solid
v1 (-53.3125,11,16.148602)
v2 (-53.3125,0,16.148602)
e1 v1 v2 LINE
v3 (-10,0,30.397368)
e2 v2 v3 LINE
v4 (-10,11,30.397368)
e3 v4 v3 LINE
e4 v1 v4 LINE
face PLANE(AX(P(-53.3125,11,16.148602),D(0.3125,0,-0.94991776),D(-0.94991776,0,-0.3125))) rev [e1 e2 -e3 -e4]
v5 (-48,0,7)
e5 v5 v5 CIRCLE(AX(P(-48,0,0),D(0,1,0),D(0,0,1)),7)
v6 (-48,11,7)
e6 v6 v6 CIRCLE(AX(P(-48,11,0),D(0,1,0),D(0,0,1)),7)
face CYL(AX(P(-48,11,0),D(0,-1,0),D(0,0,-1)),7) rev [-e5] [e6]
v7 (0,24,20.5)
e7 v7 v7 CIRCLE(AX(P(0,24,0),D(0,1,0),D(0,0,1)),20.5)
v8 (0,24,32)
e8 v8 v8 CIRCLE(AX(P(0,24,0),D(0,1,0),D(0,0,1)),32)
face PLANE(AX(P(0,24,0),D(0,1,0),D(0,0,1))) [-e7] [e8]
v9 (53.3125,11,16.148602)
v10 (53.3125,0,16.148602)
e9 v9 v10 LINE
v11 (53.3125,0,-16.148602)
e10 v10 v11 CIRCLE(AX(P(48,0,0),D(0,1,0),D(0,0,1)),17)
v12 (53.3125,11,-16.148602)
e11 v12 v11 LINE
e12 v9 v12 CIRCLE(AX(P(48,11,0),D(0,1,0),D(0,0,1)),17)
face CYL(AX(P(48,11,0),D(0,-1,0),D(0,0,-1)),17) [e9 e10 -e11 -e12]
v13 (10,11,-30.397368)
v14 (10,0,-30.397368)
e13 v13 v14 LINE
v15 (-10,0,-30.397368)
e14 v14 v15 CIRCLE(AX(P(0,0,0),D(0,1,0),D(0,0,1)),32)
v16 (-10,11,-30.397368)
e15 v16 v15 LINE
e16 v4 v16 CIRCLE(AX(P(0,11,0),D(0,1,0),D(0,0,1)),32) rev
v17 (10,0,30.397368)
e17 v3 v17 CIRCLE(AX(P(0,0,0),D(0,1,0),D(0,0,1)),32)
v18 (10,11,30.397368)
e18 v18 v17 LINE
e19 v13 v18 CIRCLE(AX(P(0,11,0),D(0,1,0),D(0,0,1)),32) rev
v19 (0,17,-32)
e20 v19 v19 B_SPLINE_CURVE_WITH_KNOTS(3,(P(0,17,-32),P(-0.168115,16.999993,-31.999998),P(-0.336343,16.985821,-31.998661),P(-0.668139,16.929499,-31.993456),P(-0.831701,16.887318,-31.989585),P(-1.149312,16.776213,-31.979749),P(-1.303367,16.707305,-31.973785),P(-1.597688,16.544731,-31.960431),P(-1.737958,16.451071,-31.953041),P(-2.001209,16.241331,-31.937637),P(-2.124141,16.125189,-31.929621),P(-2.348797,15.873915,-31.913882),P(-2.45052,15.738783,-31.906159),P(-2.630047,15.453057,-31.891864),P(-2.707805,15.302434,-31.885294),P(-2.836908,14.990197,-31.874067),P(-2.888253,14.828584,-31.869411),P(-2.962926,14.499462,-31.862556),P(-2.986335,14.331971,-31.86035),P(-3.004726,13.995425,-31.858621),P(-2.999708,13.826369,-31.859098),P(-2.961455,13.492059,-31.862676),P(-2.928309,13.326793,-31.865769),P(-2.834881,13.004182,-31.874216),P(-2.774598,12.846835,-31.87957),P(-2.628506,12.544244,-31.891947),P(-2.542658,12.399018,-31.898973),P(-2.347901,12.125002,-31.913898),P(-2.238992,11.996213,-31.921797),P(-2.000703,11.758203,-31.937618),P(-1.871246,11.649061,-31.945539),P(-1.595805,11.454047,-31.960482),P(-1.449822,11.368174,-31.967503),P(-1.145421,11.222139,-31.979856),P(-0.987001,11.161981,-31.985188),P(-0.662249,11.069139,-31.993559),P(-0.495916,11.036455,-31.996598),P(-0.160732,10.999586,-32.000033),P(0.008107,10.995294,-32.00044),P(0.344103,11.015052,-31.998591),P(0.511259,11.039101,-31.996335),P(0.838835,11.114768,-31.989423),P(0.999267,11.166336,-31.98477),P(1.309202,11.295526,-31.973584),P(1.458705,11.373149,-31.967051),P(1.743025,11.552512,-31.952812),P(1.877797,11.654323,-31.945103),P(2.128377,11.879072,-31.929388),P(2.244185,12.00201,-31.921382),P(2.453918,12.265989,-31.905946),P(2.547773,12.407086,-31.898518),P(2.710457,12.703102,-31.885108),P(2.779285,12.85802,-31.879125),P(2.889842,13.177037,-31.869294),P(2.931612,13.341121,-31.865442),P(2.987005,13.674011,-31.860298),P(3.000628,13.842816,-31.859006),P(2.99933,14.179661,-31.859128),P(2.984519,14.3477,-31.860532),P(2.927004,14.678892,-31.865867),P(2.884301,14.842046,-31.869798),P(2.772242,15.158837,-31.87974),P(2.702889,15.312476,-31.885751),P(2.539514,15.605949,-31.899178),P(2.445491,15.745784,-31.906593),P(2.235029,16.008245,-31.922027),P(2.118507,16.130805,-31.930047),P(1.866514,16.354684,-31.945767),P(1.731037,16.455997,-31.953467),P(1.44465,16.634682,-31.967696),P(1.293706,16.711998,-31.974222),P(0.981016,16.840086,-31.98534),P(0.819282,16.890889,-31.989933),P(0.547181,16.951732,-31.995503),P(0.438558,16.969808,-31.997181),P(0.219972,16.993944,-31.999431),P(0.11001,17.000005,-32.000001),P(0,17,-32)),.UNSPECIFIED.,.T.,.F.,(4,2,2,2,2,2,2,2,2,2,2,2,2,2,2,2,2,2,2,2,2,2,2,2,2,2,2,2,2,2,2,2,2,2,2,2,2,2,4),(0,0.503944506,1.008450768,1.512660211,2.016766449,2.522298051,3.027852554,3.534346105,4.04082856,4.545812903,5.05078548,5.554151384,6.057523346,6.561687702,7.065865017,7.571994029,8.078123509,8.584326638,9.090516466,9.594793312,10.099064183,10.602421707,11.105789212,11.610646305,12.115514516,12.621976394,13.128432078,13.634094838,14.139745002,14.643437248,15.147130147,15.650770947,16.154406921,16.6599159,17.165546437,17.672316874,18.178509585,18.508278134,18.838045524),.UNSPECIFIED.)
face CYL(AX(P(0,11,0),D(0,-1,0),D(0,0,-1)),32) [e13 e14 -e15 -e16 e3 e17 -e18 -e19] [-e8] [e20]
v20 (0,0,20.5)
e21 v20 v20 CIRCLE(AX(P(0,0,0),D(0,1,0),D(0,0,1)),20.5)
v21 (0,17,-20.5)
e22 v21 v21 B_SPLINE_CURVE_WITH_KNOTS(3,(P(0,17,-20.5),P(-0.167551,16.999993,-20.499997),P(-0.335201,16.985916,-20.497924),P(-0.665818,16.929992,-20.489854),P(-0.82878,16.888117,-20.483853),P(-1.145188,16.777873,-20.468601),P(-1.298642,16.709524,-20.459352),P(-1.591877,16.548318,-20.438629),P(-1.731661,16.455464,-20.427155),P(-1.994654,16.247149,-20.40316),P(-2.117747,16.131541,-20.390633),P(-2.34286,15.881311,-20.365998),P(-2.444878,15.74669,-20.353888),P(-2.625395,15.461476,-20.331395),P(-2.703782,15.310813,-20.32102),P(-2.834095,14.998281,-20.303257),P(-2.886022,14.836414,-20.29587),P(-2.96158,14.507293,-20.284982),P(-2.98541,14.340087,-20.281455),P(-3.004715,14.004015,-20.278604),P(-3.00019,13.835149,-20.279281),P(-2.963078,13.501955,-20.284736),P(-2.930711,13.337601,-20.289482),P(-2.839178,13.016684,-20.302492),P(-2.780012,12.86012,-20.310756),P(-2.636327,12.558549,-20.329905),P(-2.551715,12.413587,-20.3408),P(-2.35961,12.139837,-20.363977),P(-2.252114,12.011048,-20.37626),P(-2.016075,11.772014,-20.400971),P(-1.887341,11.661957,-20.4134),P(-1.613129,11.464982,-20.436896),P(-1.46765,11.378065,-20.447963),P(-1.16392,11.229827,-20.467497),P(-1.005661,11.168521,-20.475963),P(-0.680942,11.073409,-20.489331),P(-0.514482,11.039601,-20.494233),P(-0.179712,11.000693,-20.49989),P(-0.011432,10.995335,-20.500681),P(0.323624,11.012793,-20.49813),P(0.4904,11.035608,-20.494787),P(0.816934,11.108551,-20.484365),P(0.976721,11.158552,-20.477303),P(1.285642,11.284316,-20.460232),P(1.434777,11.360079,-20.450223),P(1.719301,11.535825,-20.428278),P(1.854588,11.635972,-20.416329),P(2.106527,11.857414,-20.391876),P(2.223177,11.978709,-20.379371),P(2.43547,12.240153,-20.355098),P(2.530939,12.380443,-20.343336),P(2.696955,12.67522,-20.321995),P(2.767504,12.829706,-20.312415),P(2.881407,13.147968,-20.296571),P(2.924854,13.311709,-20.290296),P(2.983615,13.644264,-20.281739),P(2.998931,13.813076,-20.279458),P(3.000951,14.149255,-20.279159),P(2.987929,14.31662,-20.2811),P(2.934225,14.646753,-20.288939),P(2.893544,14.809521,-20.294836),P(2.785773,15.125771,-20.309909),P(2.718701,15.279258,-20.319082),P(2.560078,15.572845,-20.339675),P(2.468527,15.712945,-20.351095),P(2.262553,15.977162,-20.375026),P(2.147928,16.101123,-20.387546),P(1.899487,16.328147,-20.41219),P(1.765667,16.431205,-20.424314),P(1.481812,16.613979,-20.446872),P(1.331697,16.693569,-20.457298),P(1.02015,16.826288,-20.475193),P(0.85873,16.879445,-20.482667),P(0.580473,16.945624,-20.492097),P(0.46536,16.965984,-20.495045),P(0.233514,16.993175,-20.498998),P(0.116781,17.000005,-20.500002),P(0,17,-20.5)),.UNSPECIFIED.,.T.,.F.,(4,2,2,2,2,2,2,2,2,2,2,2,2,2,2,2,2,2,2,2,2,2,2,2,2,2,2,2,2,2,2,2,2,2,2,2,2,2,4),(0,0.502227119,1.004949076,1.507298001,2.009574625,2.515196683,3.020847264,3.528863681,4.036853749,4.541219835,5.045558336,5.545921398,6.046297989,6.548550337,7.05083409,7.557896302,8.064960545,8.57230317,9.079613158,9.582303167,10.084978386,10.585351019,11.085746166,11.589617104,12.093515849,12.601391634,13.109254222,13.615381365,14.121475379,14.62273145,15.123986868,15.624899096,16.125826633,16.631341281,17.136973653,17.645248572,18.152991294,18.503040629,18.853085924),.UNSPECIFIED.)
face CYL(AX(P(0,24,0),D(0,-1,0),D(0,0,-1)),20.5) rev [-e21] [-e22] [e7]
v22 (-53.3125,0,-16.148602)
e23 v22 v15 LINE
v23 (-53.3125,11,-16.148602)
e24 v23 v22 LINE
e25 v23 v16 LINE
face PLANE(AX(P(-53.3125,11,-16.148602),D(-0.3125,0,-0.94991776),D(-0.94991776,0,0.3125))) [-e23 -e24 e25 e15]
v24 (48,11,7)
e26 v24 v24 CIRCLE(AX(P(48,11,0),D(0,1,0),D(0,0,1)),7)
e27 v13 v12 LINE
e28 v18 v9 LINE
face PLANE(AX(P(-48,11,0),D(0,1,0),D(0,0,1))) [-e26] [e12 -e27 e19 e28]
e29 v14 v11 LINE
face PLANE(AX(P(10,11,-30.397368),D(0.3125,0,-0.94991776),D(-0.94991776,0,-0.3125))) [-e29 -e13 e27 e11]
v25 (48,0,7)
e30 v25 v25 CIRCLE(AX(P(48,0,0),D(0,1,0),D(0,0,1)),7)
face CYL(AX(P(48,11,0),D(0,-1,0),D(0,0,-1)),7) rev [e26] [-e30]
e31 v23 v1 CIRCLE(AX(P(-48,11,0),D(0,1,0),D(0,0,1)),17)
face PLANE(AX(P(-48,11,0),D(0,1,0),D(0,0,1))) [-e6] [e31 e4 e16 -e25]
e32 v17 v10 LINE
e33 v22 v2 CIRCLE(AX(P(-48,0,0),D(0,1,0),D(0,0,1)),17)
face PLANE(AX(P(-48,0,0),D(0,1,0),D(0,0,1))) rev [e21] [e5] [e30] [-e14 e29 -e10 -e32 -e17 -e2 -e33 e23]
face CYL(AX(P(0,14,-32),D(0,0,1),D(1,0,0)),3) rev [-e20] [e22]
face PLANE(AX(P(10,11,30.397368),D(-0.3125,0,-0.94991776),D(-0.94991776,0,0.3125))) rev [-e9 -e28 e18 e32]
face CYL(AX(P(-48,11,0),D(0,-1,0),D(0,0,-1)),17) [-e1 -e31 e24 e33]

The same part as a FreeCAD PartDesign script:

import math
import FreeCAD as App
import Part
import Sketcher

V = App.Vector

doc = App.newDocument("Part")
params = doc.addObject("Spreadsheet::Sheet", "Params")
for row, (alias, value) in enumerate([
    ("sketch1_radius", "17 mm"),
    ("sketch1_radius2", "32 mm"),
    ("pad1_length", "11 mm"),
    ("sketch2_diameter", "14 mm"),
    ("pocket1_length", "11 mm"),
    ("sketch3_diameter", "64 mm"),
    ("pad2_length", "24 mm"),
    ("sketch4_diameter", "41 mm"),
    ("sketch5_diameter", "6 mm"),
], start=1):
    params.set(f"A{row}", alias)
    params.set(f"B{row}", "=" + value)
    params.setAlias(f"B{row}", alias)

body = doc.addObject("PartDesign::Body", "Body")

# Sketch on XZ plane
sketch1 = doc.addObject("Sketcher::SketchObject", "Sketch")
body.addObject(sketch1)
sketch1.AttachmentSupport = (doc.XZ_Plane, [""])
sketch1.MapMode = "FlatFace"
sketch1.addGeometry([
    Part.LineSegment(V(-10, -30.397368, 0), V(-53.3125, -16.148602, 0)),  # 0
    Part.ArcOfCircle(Part.Circle(V(-48, 0, 0), V(0, 0, 1), 17), math.radians(108.209957), math.radians(251.790043)),  # 1
    Part.LineSegment(V(-53.3125, 16.148602, 0), V(-10, 30.397368, 0)),  # 2
    Part.ArcOfCircle(Part.Circle(V(0, 0, 0), V(0, 0, 1), 32), math.radians(71.790043), math.radians(108.209957)),  # 3
    Part.LineSegment(V(10, 30.397368, 0), V(53.3125, 16.148602, 0)),  # 4
    Part.ArcOfCircle(Part.Circle(V(48, 0, 0), V(0, 0, 1), 17), math.radians(-71.790043), math.radians(71.790043)),  # 5
    Part.LineSegment(V(53.3125, -16.148602, 0), V(10, -30.397368, 0)),  # 6
    Part.ArcOfCircle(Part.Circle(V(0, 0, 0), V(0, 0, 1), 32), math.radians(-108.209957), math.radians(-71.790043)),  # 7
], False)
sketch1.addConstraint([
    Sketcher.Constraint("Tangent", 0, 2, 1, 2),
    Sketcher.Constraint("Tangent", 1, 1, 2, 1),
    Sketcher.Constraint("Tangent", 2, 2, 3, 2),
    Sketcher.Constraint("Tangent", 3, 1, 4, 1),
    Sketcher.Constraint("Tangent", 4, 2, 5, 2),
    Sketcher.Constraint("Tangent", 5, 1, 6, 1),
    Sketcher.Constraint("Tangent", 6, 2, 7, 2),
    Sketcher.Constraint("Tangent", 7, 1, 0, 1),
    Sketcher.Constraint("Coincident", 3, 3, -1, 1),
    Sketcher.Constraint("Coincident", 7, 3, -1, 1),
    Sketcher.Constraint("Equal", 1, 5),
    Sketcher.Constraint("Equal", 3, 7),
    Sketcher.Constraint("Symmetric", 1, 3, 5, 3, -1, 1),
    Sketcher.Constraint("PointOnObject", 1, 3, -1),
    Sketcher.Constraint("Radius", 1, 17.0),
    Sketcher.Constraint("Radius", 3, 32.0),
    Sketcher.Constraint("DistanceX", 1, 3, -1, 1, 48.0),
])
sketch1.setExpression("Constraints[14]", "Params.sketch1_radius")
sketch1.setExpression("Constraints[15]", "Params.sketch1_radius2")
pad1 = doc.addObject("PartDesign::Pad", "Pad")
body.addObject(pad1)
pad1.Profile = sketch1
pad1.setExpression("Length", "Params.pad1_length")
pad1.Reversed = True

# Sketch on XZ plane
sketch2 = doc.addObject("Sketcher::SketchObject", "Sketch001")
body.addObject(sketch2)
sketch2.AttachmentSupport = (doc.XZ_Plane, [""])
sketch2.MapMode = "FlatFace"
sketch2.addGeometry([
    Part.Circle(V(-48, 0, 0), V(0, 0, 1), 7),
    Part.Circle(V(48, 0, 0), V(0, 0, 1), 7),
], False)
sketch2.addConstraint([
    Sketcher.Constraint("Equal", 0, 1),
    Sketcher.Constraint("Symmetric", 0, 3, 1, 3, -1, 1),
    Sketcher.Constraint("PointOnObject", 0, 3, -1),
    Sketcher.Constraint("Diameter", 0, 14.0),
    Sketcher.Constraint("DistanceX", 0, 3, -1, 1, 48.0),
])
sketch2.setExpression("Constraints[3]", "Params.sketch2_diameter")
pocket1 = doc.addObject("PartDesign::Pocket", "Pocket")
body.addObject(pocket1)
pocket1.Profile = sketch2
pocket1.setExpression("Length", "Params.pocket1_length")

# Sketch on XZ plane
sketch3 = doc.addObject("Sketcher::SketchObject", "Sketch002")
body.addObject(sketch3)
sketch3.AttachmentSupport = (doc.XZ_Plane, [""])
sketch3.MapMode = "FlatFace"
sketch3.addGeometry(Part.Circle(V(0, 0, 0), V(0, 0, 1), 32), False)
sketch3.addConstraint([
    Sketcher.Constraint("Coincident", 0, 3, -1, 1),
    Sketcher.Constraint("Diameter", 0, 64.0),
])
sketch3.setExpression("Constraints[1]", "Params.sketch3_diameter")
pad2 = doc.addObject("PartDesign::Pad", "Pad001")
body.addObject(pad2)
pad2.Profile = sketch3
pad2.setExpression("Length", "Params.pad2_length")
pad2.Reversed = True

# Sketch on XZ plane
sketch4 = doc.addObject("Sketcher::SketchObject", "Sketch003")
body.addObject(sketch4)
sketch4.AttachmentSupport = (doc.XZ_Plane, [""])
sketch4.MapMode = "FlatFace"
sketch4.addGeometry(Part.Circle(V(0, 0, 0), V(0, 0, 1), 20.5), False)
sketch4.addConstraint([
    Sketcher.Constraint("Coincident", 0, 3, -1, 1),
    Sketcher.Constraint("Diameter", 0, 41.0),
])
sketch4.setExpression("Constraints[1]", "Params.sketch4_diameter")
pocket2 = doc.addObject("PartDesign::Pocket", "Pocket001")
body.addObject(pocket2)
pocket2.Profile = sketch4
pocket2.Type = "ThroughAll"

# Sketch on XY plane
sketch5 = doc.addObject("Sketcher::SketchObject", "Sketch004")
body.addObject(sketch5)
sketch5.AttachmentSupport = (doc.XY_Plane, [""])
sketch5.MapMode = "FlatFace"
sketch5.addGeometry(Part.Circle(V(0, 14, 0), V(0, 0, 1), 3), False)
sketch5.addConstraint([
    Sketcher.Constraint("PointOnObject", 0, 3, -2),
    Sketcher.Constraint("Diameter", 0, 6.0),
    Sketcher.Constraint("DistanceY", -1, 1, 0, 3, 14.0),
])
sketch5.setExpression("Constraints[1]", "Params.sketch5_diameter")
pocket3 = doc.addObject("PartDesign::Pocket", "Pocket002")
body.addObject(pocket3)
pocket3.Profile = sketch5
pocket3.Type = "ThroughAll"

doc.recompute()
